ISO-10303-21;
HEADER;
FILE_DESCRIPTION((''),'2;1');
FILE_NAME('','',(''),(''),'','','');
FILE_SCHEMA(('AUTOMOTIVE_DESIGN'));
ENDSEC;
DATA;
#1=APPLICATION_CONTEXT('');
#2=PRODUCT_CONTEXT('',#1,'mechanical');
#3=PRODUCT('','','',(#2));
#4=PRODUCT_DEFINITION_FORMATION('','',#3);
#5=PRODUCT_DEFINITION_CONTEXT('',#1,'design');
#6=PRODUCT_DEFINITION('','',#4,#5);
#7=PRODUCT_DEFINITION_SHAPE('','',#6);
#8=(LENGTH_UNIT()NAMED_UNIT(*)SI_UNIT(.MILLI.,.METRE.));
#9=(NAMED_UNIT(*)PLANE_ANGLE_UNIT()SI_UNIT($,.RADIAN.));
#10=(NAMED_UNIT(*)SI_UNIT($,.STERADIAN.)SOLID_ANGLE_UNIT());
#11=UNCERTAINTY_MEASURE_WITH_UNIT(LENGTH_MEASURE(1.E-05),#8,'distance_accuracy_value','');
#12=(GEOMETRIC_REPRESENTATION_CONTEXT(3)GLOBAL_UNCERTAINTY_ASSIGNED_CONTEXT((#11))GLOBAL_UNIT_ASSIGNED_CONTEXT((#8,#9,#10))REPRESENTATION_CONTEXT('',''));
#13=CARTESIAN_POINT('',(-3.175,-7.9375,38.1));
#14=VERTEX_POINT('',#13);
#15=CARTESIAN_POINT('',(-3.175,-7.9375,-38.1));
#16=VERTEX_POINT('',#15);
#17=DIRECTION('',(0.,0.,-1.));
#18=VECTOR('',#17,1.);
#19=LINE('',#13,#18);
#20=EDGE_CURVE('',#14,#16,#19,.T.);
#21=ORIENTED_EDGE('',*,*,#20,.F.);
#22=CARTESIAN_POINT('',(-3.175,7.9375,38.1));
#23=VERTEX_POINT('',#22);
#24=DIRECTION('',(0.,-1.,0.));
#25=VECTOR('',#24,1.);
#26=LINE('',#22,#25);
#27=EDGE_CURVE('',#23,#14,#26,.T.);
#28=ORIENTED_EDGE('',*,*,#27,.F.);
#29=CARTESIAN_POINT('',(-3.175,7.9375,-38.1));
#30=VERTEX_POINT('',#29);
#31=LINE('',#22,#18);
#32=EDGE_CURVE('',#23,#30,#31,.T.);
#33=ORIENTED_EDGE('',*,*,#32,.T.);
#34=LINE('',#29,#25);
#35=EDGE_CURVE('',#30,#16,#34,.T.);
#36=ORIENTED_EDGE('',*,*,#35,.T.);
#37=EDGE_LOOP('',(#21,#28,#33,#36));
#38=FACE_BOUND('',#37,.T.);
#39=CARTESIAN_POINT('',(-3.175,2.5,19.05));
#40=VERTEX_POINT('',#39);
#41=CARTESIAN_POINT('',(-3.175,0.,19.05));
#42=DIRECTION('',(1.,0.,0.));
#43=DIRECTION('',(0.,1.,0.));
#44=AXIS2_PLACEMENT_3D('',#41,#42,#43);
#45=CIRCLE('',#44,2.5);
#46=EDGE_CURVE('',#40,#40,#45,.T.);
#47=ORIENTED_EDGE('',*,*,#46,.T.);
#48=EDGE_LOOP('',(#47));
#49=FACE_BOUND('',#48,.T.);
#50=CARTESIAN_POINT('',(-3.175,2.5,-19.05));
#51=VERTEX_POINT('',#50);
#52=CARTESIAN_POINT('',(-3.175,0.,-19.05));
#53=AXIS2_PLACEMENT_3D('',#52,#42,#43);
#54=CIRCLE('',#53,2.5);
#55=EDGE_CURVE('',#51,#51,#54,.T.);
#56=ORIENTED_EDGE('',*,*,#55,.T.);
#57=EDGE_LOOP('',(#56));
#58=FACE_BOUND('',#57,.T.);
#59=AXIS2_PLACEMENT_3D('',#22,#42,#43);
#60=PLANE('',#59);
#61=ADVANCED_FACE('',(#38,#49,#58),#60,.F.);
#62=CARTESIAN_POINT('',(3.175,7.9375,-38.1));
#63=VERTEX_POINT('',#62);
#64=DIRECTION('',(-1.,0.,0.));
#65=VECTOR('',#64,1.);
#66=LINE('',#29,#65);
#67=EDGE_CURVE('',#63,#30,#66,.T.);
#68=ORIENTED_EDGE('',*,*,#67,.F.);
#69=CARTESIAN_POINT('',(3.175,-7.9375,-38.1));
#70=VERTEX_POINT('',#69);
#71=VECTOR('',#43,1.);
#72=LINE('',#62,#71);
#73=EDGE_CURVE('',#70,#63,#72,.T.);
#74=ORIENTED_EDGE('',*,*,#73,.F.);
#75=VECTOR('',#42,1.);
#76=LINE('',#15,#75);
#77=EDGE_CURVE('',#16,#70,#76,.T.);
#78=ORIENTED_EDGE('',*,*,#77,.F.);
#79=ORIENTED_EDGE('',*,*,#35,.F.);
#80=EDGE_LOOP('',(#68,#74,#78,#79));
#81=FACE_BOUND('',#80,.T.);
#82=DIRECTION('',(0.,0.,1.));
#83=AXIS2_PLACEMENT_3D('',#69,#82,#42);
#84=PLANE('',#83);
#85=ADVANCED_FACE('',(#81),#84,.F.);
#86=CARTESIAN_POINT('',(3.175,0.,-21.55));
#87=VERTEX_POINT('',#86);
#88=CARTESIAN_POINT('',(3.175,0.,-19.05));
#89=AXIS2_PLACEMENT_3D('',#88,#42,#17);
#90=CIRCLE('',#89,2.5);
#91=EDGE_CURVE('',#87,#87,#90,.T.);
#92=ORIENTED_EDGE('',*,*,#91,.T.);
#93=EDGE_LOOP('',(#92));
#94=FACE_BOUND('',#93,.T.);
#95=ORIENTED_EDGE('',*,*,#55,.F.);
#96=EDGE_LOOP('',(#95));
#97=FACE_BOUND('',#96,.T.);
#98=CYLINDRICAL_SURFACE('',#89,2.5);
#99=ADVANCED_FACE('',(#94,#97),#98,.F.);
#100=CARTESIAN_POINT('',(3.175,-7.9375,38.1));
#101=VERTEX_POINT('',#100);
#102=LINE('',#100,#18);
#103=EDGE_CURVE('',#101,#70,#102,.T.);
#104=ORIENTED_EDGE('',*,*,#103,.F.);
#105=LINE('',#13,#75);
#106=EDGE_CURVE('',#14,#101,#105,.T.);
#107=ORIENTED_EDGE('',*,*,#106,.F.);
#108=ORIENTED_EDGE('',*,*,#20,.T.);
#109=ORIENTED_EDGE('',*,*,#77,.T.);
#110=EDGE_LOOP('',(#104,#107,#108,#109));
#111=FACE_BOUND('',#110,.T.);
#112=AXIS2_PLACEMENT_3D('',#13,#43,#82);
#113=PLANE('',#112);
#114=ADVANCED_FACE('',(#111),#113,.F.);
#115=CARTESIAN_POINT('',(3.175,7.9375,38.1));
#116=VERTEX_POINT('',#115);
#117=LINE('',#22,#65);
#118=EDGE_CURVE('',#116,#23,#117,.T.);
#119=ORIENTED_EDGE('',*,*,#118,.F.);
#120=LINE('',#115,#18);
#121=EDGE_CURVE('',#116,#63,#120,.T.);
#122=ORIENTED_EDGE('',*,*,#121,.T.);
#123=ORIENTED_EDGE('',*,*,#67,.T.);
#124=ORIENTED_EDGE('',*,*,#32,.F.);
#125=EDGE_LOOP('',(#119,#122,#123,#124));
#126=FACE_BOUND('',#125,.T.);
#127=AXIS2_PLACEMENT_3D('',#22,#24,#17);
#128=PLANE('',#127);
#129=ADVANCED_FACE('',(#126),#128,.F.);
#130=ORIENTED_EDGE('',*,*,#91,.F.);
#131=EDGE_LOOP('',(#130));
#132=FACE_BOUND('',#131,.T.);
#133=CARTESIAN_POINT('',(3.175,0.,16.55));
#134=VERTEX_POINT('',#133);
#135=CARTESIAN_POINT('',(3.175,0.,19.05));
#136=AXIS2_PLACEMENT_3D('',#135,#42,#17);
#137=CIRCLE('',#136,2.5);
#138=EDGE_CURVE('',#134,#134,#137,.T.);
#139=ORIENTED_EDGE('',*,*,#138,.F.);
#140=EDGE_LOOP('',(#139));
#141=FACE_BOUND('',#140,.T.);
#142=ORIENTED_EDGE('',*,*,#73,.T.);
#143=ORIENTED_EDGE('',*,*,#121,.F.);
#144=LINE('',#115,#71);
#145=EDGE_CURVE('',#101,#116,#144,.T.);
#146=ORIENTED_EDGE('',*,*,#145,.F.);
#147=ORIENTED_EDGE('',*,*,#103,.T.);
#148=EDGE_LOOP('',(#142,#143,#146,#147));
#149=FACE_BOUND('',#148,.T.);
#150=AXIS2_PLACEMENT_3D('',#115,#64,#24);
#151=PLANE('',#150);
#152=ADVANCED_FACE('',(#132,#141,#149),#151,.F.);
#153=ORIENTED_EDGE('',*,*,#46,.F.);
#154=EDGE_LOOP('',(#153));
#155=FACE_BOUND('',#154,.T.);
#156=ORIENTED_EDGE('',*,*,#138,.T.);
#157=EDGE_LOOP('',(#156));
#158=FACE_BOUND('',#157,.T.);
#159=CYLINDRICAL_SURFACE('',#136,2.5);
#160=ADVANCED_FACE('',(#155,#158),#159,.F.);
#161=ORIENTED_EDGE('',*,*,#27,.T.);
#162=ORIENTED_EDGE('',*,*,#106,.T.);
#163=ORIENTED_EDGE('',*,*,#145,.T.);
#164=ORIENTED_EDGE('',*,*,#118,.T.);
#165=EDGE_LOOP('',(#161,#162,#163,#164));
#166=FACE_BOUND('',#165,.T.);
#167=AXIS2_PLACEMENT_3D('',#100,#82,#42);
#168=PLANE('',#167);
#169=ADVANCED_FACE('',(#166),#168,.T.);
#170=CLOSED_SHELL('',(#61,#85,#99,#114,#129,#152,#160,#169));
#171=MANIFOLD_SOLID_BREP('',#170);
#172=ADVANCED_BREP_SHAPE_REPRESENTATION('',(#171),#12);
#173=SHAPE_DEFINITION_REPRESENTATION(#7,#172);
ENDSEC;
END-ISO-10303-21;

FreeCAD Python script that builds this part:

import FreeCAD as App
import Part
import Sketcher

V = App.Vector
Q = App.Units.Quantity


def add_polygon(sketch, points):
    """Adds a closed chain of lines whose ends are joined by coincident constraints."""
    first, n = sketch.GeometryCount, len(points)
    for a, b in zip(points, points[1:] + points[:1]):
        sketch.addGeometry(Part.LineSegment(App.Vector(*a, 0), App.Vector(*b, 0)), False)
    for i in range(n):
        sketch.addConstraint(Sketcher.Constraint("Coincident", first + i, 2, first + (i + 1) % n, 1))

doc = App.newDocument("Part")
body = doc.addObject("PartDesign::Body", "Body")

sketch1 = body.newObject("Sketcher::SketchObject", "Sketch")
sketch1.AttachmentSupport = (doc.getObject("XY_Plane"), [""])
sketch1.MapMode = "FlatFace"
add_polygon(sketch1, [(-3.175, 7.9375), (-3.175, -7.9375), (3.175, -7.9375), (3.175, 7.9375)])
sketch1.addConstraint([
    Sketcher.Constraint("Vertical", 0),
    Sketcher.Constraint("Horizontal", 1),
    Sketcher.Constraint("Vertical", 2),
    Sketcher.Constraint("Horizontal", 3),
    Sketcher.Constraint("Symmetric", 0, 2, 2, 2, -1, 1),
    Sketcher.Constraint("DistanceX", 1, 1, 1, 2, Q("0.25 in")),
    Sketcher.Constraint("DistanceY", 0, 2, 0, 1, Q("0.625 in")),
])
pad1 = body.newObject("PartDesign::Pad", "Pad")
pad1.Profile = sketch1
pad1.Length = Q("3 in")
pad1.Midplane = True

sketch2 = body.newObject("Sketcher::SketchObject", "Sketch001")
sketch2.AttachmentSupport = (doc.getObject("YZ_Plane"), [""])
sketch2.MapMode = "FlatFace"
sketch2.AttachmentOffset = App.Placement(V(0, 0, 0.125 * 25.4), App.Rotation())
sketch2.addGeometry([
    Part.Circle(V(0, 19.05, 0), V(0, 0, 1), 2.5),
    Part.Circle(V(0, -19.05, 0), V(0, 0, 1), 2.5),
], False)
sketch2.addConstraint([
    Sketcher.Constraint("Equal", 0, 1),
    Sketcher.Constraint("Symmetric", 0, 3, 1, 3, -1, 1),
    Sketcher.Constraint("PointOnObject", 0, 3, -2),
    Sketcher.Constraint("DistanceY", 1, 3, 0, 3, Q("1.5 in")),
    Sketcher.Constraint("Diameter", 0, 5.0),
])
doc.recompute()
hole = body.newObject("PartDesign::Hole", "Hole")
hole.Profile = sketch2
hole.ThreadType = "None"
hole.Diameter = 5
hole.DepthType = "Dimension"
hole.Depth = Q("0.25 in")
hole.DrillPoint = "Flat"

doc.recompute()
